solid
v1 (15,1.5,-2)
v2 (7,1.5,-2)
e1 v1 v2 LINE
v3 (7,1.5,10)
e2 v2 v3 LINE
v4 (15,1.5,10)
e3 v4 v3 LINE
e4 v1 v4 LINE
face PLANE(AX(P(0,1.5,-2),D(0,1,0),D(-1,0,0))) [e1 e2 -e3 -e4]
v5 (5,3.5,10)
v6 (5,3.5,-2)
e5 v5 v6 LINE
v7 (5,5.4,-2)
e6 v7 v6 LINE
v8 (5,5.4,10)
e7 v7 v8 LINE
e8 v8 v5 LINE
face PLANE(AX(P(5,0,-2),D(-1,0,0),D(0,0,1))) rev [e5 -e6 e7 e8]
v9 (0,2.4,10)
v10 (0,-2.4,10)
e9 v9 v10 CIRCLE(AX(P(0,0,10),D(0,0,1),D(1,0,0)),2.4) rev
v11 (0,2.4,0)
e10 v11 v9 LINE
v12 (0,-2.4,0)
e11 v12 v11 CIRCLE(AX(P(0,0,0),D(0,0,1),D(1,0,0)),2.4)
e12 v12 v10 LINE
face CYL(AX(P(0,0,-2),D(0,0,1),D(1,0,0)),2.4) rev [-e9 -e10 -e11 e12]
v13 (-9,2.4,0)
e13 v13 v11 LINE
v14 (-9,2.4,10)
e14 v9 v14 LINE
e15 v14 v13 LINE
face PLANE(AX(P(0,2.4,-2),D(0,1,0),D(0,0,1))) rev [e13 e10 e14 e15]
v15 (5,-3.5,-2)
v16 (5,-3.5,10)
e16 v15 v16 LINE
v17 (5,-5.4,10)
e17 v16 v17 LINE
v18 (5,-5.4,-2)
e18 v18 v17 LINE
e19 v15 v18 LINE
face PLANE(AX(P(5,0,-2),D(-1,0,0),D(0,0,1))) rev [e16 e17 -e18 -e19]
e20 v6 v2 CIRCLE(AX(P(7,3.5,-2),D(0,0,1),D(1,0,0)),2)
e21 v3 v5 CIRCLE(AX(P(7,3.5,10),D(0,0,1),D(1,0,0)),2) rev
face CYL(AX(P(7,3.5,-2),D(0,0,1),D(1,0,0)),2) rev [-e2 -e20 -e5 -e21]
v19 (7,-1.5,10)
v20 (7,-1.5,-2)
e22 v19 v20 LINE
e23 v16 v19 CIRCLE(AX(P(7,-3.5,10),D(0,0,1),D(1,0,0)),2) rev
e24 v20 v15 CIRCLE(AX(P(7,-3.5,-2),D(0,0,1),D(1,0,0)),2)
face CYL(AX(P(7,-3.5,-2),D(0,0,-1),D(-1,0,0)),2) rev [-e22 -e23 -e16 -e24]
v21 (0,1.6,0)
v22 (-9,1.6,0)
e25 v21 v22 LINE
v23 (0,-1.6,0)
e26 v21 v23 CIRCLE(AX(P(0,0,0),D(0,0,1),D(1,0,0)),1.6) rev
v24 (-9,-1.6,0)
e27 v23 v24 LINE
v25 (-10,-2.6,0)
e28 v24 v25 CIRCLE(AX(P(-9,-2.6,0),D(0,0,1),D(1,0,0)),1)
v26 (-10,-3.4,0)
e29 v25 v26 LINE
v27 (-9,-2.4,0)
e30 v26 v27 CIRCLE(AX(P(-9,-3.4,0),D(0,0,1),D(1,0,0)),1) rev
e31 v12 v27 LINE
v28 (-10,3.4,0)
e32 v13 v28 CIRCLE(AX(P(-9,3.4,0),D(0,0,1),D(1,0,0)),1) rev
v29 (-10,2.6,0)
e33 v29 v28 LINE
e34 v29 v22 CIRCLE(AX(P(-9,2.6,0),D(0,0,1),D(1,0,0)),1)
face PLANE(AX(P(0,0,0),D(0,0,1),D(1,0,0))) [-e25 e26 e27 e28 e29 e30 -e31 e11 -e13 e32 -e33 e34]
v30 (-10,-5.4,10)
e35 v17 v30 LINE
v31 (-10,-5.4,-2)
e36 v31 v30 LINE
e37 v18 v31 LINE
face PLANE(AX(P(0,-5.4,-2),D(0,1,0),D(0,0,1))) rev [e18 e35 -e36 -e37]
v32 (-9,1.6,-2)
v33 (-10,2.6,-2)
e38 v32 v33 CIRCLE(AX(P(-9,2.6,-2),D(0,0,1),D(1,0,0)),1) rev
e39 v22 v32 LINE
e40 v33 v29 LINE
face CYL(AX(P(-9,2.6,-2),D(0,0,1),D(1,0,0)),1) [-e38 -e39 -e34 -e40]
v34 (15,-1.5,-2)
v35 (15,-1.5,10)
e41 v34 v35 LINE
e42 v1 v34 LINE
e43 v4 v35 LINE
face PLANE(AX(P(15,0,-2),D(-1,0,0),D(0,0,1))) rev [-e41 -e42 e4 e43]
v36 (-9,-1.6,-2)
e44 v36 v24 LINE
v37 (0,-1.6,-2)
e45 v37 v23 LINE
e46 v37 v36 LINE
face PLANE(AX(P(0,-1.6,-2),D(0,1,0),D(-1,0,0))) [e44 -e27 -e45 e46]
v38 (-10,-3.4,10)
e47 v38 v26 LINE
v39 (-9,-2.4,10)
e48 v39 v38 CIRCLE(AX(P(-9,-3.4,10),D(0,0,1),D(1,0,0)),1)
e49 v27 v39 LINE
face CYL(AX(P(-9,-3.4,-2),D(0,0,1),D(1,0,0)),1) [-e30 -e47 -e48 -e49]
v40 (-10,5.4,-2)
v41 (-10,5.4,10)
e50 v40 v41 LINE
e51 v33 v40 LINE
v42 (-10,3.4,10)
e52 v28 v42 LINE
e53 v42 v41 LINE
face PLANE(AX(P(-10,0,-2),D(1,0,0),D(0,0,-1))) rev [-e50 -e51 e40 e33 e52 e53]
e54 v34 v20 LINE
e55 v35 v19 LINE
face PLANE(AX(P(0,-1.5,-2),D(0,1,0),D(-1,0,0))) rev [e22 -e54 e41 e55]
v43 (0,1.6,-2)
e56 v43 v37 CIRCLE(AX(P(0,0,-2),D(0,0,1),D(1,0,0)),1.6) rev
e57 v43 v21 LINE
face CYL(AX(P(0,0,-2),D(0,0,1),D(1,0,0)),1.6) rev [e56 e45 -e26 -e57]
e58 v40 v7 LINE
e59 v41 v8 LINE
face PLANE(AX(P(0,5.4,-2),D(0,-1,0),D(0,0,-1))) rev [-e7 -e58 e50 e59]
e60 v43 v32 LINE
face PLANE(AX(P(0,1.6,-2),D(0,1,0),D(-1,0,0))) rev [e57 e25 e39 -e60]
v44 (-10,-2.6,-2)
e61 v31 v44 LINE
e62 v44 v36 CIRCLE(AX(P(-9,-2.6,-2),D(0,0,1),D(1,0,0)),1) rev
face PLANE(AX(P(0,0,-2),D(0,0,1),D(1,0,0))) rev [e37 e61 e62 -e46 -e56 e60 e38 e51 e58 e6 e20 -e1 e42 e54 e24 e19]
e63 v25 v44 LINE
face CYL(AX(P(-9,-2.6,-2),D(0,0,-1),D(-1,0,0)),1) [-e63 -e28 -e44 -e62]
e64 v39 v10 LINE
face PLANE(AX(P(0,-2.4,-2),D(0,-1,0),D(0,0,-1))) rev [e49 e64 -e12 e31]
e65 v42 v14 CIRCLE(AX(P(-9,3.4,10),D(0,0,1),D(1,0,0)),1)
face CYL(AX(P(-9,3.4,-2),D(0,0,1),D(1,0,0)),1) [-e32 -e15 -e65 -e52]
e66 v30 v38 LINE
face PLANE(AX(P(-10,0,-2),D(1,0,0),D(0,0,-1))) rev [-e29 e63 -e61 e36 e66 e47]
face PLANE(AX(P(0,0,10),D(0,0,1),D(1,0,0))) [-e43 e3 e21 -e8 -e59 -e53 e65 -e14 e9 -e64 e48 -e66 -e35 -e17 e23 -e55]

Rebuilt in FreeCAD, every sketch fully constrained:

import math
import FreeCAD as App
import Part
import Sketcher

V = App.Vector
Q = App.Units.Quantity


def edges_at(feature, points):
    """Names of the edges that pass closest to the given points."""
    edges = feature.Shape.Edges
    near = lambda p: min(range(len(edges)), key=lambda i: edges[i].distToShape(Part.Vertex(*p))[0])
    return sorted({f"Edge{near(p) + 1}" for p in points})


def add_polygon(sketch, points):
    """Adds a closed chain of lines whose ends are joined by coincident constraints."""
    first, n = sketch.GeometryCount, len(points)
    for a, b in zip(points, points[1:] + points[:1]):
        sketch.addGeometry(Part.LineSegment(App.Vector(*a, 0), App.Vector(*b, 0)), False)
    for i in range(n):
        sketch.addConstraint(Sketcher.Constraint("Coincident", first + i, 2, first + (i + 1) % n, 1))

doc = App.newDocument("Part")
body = doc.addObject("PartDesign::Body", "Body")

# Sketch on XY plane
sketch1 = body.newObject("Sketcher::SketchObject", "Sketch")
sketch1.AttachmentSupport = (doc.getObject("XY_Plane"), [""])
sketch1.MapMode = "FlatFace"
sketch1.addGeometry([
    Part.LineSegment(V(-10, 2.4, 0), V(0, 2.4, 0)),  # 0
    Part.ArcOfCircle(Part.Circle(V(0, 0, 0), V(0, 0, 1), 2.4), math.radians(-90), math.radians(90)),  # 1
    Part.LineSegment(V(0, -2.4, 0), V(-10, -2.4, 0)),  # 2
    Part.LineSegment(V(-10, -2.4, 0), V(-10, -5.4, 0)),  # 3
    Part.LineSegment(V(-10, -5.4, 0), V(5, -5.4, 0)),  # 4
    Part.LineSegment(V(5, -5.4, 0), V(5, 5.4, 0)),  # 5
    Part.LineSegment(V(5, 5.4, 0), V(-10, 5.4, 0)),  # 6
    Part.LineSegment(V(-10, 5.4, 0), V(-10, 2.4, 0)),  # 7
], False)
sketch1.addConstraint([
    Sketcher.Constraint("Tangent", 0, 2, 1, 2),
    Sketcher.Constraint("Tangent", 1, 1, 2, 1),
    Sketcher.Constraint("Coincident", 2, 2, 3, 1),
    Sketcher.Constraint("Coincident", 3, 2, 4, 1),
    Sketcher.Constraint("Coincident", 4, 2, 5, 1),
    Sketcher.Constraint("Coincident", 5, 2, 6, 1),
    Sketcher.Constraint("Coincident", 6, 2, 7, 1),
    Sketcher.Constraint("Coincident", 7, 2, 0, 1),
    Sketcher.Constraint("Horizontal", 0),
    Sketcher.Constraint("Horizontal", 2),
    Sketcher.Constraint("Vertical", 3),
    Sketcher.Constraint("Horizontal", 4),
    Sketcher.Constraint("Vertical", 5),
    Sketcher.Constraint("Horizontal", 6),
    Sketcher.Constraint("Vertical", 7),
    Sketcher.Constraint("Coincident", 1, 3, -1, 1),
    Sketcher.Constraint("Symmetric", 3, 2, 6, 2, -1),
    Sketcher.Constraint("Radius", 1, Q("2.4 mm")),
    Sketcher.Constraint("DistanceX", 0, 1, 0, 2, Q("10 mm")),
    Sketcher.Constraint("DistanceX", 4, 1, 4, 2, Q("15 mm")),
    Sketcher.Constraint("DistanceY", 3, 2, 3, 1, Q("3 mm")),
])
pad1 = body.newObject("PartDesign::Pad", "Pad")
pad1.Profile = sketch1
pad1.Type = "TwoLengths"
pad1.Length = 10
pad1.Length2 = 2

# Sketch on XY plane
sketch2 = body.newObject("Sketcher::SketchObject", "Sketch001")
sketch2.AttachmentSupport = (doc.getObject("XY_Plane"), [""])
sketch2.MapMode = "FlatFace"
sketch2.AttachmentOffset = App.Placement(V(0, 0, -2), App.Rotation())
sketch2.addGeometry([
    Part.LineSegment(V(-10, 1.6, 0), V(0, 1.6, 0)),  # 0
    Part.ArcOfCircle(Part.Circle(V(0, 0, 0), V(0, 0, 1), 1.6), math.radians(-90), math.radians(90)),  # 1
    Part.LineSegment(V(0, -1.6, 0), V(-10, -1.6, 0)),  # 2
    Part.LineSegment(V(-10, -1.6, 0), V(-10, -5.4, 0)),  # 3
    Part.LineSegment(V(-10, -5.4, 0), V(5, -5.4, 0)),  # 4
    Part.LineSegment(V(5, -5.4, 0), V(5, 5.4, 0)),  # 5
    Part.LineSegment(V(5, 5.4, 0), V(-10, 5.4, 0)),  # 6
    Part.LineSegment(V(-10, 5.4, 0), V(-10, 1.6, 0)),  # 7
], False)
sketch2.addConstraint([
    Sketcher.Constraint("Tangent", 0, 2, 1, 2),
    Sketcher.Constraint("Tangent", 1, 1, 2, 1),
    Sketcher.Constraint("Coincident", 2, 2, 3, 1),
    Sketcher.Constraint("Coincident", 3, 2, 4, 1),
    Sketcher.Constraint("Coincident", 4, 2, 5, 1),
    Sketcher.Constraint("Coincident", 5, 2, 6, 1),
    Sketcher.Constraint("Coincident", 6, 2, 7, 1),
    Sketcher.Constraint("Coincident", 7, 2, 0, 1),
    Sketcher.Constraint("Horizontal", 0),
    Sketcher.Constraint("Horizontal", 2),
    Sketcher.Constraint("Vertical", 3),
    Sketcher.Constraint("Horizontal", 4),
    Sketcher.Constraint("Vertical", 5),
    Sketcher.Constraint("Horizontal", 6),
    Sketcher.Constraint("Vertical", 7),
    Sketcher.Constraint("Coincident", 1, 3, -1, 1),
    Sketcher.Constraint("Symmetric", 3, 2, 6, 2, -1),
    Sketcher.Constraint("Radius", 1, Q("1.6 mm")),
    Sketcher.Constraint("DistanceX", 0, 1, 0, 2, Q("10 mm")),
    Sketcher.Constraint("DistanceX", 4, 1, 4, 2, Q("15 mm")),
    Sketcher.Constraint("DistanceY", 3, 2, 3, 1, Q("3.8 mm")),
])
pad2 = body.newObject("PartDesign::Pad", "Pad001")
pad2.Profile = sketch2
pad2.Length = 2
doc.recompute()

fillet = body.newObject("PartDesign::Fillet", "Fillet")
fillet.Base = (pad2, edges_at(pad2, [(-10, -2.4, 5), (-10, 2.4, 5)]))
fillet.Radius = 1
doc.recompute()

fillet2 = body.newObject("PartDesign::Fillet", "Fillet001")
fillet2.Base = (fillet, edges_at(fillet, [(-10, 1.6, -1), (-10, -1.6, -1)]))
fillet2.Radius = 1

# Sketch on XY plane
sketch3 = body.newObject("Sketcher::SketchObject", "Sketch002")
sketch3.AttachmentSupport = (doc.getObject("XY_Plane"), [""])
sketch3.MapMode = "FlatFace"
add_polygon(sketch3, [(5, 1.5), (5, -1.5), (15, -1.5), (15, 1.5)])  # lines 0-3
sketch3.addConstraint([
    Sketcher.Constraint("Vertical", 0),
    Sketcher.Constraint("Horizontal", 1),
    Sketcher.Constraint("Vertical", 2),
    Sketcher.Constraint("Horizontal", 3),
    Sketcher.Constraint("DistanceX", 1, 1, 1, 2, Q("10 mm")),
    Sketcher.Constraint("DistanceY", 0, 2, 0, 1, Q("3 mm")),
    Sketcher.Constraint("DistanceX", -1, 1, 0, 2, Q("5 mm")),
    Sketcher.Constraint("DistanceY", 0, 2, -1, 1, Q("1.5 mm")),
])
pad3 = body.newObject("PartDesign::Pad", "Pad002")
pad3.Profile = sketch3
pad3.Type = "TwoLengths"
pad3.Length = 10
pad3.Length2 = 2
doc.recompute()

fillet3 = body.newObject("PartDesign::Fillet", "Fillet002")
fillet3.Base = (pad3, edges_at(pad3, [(5, -1.5, 4), (5, 1.5, 4)]))
fillet3.Radius = 2

doc.recompute()
